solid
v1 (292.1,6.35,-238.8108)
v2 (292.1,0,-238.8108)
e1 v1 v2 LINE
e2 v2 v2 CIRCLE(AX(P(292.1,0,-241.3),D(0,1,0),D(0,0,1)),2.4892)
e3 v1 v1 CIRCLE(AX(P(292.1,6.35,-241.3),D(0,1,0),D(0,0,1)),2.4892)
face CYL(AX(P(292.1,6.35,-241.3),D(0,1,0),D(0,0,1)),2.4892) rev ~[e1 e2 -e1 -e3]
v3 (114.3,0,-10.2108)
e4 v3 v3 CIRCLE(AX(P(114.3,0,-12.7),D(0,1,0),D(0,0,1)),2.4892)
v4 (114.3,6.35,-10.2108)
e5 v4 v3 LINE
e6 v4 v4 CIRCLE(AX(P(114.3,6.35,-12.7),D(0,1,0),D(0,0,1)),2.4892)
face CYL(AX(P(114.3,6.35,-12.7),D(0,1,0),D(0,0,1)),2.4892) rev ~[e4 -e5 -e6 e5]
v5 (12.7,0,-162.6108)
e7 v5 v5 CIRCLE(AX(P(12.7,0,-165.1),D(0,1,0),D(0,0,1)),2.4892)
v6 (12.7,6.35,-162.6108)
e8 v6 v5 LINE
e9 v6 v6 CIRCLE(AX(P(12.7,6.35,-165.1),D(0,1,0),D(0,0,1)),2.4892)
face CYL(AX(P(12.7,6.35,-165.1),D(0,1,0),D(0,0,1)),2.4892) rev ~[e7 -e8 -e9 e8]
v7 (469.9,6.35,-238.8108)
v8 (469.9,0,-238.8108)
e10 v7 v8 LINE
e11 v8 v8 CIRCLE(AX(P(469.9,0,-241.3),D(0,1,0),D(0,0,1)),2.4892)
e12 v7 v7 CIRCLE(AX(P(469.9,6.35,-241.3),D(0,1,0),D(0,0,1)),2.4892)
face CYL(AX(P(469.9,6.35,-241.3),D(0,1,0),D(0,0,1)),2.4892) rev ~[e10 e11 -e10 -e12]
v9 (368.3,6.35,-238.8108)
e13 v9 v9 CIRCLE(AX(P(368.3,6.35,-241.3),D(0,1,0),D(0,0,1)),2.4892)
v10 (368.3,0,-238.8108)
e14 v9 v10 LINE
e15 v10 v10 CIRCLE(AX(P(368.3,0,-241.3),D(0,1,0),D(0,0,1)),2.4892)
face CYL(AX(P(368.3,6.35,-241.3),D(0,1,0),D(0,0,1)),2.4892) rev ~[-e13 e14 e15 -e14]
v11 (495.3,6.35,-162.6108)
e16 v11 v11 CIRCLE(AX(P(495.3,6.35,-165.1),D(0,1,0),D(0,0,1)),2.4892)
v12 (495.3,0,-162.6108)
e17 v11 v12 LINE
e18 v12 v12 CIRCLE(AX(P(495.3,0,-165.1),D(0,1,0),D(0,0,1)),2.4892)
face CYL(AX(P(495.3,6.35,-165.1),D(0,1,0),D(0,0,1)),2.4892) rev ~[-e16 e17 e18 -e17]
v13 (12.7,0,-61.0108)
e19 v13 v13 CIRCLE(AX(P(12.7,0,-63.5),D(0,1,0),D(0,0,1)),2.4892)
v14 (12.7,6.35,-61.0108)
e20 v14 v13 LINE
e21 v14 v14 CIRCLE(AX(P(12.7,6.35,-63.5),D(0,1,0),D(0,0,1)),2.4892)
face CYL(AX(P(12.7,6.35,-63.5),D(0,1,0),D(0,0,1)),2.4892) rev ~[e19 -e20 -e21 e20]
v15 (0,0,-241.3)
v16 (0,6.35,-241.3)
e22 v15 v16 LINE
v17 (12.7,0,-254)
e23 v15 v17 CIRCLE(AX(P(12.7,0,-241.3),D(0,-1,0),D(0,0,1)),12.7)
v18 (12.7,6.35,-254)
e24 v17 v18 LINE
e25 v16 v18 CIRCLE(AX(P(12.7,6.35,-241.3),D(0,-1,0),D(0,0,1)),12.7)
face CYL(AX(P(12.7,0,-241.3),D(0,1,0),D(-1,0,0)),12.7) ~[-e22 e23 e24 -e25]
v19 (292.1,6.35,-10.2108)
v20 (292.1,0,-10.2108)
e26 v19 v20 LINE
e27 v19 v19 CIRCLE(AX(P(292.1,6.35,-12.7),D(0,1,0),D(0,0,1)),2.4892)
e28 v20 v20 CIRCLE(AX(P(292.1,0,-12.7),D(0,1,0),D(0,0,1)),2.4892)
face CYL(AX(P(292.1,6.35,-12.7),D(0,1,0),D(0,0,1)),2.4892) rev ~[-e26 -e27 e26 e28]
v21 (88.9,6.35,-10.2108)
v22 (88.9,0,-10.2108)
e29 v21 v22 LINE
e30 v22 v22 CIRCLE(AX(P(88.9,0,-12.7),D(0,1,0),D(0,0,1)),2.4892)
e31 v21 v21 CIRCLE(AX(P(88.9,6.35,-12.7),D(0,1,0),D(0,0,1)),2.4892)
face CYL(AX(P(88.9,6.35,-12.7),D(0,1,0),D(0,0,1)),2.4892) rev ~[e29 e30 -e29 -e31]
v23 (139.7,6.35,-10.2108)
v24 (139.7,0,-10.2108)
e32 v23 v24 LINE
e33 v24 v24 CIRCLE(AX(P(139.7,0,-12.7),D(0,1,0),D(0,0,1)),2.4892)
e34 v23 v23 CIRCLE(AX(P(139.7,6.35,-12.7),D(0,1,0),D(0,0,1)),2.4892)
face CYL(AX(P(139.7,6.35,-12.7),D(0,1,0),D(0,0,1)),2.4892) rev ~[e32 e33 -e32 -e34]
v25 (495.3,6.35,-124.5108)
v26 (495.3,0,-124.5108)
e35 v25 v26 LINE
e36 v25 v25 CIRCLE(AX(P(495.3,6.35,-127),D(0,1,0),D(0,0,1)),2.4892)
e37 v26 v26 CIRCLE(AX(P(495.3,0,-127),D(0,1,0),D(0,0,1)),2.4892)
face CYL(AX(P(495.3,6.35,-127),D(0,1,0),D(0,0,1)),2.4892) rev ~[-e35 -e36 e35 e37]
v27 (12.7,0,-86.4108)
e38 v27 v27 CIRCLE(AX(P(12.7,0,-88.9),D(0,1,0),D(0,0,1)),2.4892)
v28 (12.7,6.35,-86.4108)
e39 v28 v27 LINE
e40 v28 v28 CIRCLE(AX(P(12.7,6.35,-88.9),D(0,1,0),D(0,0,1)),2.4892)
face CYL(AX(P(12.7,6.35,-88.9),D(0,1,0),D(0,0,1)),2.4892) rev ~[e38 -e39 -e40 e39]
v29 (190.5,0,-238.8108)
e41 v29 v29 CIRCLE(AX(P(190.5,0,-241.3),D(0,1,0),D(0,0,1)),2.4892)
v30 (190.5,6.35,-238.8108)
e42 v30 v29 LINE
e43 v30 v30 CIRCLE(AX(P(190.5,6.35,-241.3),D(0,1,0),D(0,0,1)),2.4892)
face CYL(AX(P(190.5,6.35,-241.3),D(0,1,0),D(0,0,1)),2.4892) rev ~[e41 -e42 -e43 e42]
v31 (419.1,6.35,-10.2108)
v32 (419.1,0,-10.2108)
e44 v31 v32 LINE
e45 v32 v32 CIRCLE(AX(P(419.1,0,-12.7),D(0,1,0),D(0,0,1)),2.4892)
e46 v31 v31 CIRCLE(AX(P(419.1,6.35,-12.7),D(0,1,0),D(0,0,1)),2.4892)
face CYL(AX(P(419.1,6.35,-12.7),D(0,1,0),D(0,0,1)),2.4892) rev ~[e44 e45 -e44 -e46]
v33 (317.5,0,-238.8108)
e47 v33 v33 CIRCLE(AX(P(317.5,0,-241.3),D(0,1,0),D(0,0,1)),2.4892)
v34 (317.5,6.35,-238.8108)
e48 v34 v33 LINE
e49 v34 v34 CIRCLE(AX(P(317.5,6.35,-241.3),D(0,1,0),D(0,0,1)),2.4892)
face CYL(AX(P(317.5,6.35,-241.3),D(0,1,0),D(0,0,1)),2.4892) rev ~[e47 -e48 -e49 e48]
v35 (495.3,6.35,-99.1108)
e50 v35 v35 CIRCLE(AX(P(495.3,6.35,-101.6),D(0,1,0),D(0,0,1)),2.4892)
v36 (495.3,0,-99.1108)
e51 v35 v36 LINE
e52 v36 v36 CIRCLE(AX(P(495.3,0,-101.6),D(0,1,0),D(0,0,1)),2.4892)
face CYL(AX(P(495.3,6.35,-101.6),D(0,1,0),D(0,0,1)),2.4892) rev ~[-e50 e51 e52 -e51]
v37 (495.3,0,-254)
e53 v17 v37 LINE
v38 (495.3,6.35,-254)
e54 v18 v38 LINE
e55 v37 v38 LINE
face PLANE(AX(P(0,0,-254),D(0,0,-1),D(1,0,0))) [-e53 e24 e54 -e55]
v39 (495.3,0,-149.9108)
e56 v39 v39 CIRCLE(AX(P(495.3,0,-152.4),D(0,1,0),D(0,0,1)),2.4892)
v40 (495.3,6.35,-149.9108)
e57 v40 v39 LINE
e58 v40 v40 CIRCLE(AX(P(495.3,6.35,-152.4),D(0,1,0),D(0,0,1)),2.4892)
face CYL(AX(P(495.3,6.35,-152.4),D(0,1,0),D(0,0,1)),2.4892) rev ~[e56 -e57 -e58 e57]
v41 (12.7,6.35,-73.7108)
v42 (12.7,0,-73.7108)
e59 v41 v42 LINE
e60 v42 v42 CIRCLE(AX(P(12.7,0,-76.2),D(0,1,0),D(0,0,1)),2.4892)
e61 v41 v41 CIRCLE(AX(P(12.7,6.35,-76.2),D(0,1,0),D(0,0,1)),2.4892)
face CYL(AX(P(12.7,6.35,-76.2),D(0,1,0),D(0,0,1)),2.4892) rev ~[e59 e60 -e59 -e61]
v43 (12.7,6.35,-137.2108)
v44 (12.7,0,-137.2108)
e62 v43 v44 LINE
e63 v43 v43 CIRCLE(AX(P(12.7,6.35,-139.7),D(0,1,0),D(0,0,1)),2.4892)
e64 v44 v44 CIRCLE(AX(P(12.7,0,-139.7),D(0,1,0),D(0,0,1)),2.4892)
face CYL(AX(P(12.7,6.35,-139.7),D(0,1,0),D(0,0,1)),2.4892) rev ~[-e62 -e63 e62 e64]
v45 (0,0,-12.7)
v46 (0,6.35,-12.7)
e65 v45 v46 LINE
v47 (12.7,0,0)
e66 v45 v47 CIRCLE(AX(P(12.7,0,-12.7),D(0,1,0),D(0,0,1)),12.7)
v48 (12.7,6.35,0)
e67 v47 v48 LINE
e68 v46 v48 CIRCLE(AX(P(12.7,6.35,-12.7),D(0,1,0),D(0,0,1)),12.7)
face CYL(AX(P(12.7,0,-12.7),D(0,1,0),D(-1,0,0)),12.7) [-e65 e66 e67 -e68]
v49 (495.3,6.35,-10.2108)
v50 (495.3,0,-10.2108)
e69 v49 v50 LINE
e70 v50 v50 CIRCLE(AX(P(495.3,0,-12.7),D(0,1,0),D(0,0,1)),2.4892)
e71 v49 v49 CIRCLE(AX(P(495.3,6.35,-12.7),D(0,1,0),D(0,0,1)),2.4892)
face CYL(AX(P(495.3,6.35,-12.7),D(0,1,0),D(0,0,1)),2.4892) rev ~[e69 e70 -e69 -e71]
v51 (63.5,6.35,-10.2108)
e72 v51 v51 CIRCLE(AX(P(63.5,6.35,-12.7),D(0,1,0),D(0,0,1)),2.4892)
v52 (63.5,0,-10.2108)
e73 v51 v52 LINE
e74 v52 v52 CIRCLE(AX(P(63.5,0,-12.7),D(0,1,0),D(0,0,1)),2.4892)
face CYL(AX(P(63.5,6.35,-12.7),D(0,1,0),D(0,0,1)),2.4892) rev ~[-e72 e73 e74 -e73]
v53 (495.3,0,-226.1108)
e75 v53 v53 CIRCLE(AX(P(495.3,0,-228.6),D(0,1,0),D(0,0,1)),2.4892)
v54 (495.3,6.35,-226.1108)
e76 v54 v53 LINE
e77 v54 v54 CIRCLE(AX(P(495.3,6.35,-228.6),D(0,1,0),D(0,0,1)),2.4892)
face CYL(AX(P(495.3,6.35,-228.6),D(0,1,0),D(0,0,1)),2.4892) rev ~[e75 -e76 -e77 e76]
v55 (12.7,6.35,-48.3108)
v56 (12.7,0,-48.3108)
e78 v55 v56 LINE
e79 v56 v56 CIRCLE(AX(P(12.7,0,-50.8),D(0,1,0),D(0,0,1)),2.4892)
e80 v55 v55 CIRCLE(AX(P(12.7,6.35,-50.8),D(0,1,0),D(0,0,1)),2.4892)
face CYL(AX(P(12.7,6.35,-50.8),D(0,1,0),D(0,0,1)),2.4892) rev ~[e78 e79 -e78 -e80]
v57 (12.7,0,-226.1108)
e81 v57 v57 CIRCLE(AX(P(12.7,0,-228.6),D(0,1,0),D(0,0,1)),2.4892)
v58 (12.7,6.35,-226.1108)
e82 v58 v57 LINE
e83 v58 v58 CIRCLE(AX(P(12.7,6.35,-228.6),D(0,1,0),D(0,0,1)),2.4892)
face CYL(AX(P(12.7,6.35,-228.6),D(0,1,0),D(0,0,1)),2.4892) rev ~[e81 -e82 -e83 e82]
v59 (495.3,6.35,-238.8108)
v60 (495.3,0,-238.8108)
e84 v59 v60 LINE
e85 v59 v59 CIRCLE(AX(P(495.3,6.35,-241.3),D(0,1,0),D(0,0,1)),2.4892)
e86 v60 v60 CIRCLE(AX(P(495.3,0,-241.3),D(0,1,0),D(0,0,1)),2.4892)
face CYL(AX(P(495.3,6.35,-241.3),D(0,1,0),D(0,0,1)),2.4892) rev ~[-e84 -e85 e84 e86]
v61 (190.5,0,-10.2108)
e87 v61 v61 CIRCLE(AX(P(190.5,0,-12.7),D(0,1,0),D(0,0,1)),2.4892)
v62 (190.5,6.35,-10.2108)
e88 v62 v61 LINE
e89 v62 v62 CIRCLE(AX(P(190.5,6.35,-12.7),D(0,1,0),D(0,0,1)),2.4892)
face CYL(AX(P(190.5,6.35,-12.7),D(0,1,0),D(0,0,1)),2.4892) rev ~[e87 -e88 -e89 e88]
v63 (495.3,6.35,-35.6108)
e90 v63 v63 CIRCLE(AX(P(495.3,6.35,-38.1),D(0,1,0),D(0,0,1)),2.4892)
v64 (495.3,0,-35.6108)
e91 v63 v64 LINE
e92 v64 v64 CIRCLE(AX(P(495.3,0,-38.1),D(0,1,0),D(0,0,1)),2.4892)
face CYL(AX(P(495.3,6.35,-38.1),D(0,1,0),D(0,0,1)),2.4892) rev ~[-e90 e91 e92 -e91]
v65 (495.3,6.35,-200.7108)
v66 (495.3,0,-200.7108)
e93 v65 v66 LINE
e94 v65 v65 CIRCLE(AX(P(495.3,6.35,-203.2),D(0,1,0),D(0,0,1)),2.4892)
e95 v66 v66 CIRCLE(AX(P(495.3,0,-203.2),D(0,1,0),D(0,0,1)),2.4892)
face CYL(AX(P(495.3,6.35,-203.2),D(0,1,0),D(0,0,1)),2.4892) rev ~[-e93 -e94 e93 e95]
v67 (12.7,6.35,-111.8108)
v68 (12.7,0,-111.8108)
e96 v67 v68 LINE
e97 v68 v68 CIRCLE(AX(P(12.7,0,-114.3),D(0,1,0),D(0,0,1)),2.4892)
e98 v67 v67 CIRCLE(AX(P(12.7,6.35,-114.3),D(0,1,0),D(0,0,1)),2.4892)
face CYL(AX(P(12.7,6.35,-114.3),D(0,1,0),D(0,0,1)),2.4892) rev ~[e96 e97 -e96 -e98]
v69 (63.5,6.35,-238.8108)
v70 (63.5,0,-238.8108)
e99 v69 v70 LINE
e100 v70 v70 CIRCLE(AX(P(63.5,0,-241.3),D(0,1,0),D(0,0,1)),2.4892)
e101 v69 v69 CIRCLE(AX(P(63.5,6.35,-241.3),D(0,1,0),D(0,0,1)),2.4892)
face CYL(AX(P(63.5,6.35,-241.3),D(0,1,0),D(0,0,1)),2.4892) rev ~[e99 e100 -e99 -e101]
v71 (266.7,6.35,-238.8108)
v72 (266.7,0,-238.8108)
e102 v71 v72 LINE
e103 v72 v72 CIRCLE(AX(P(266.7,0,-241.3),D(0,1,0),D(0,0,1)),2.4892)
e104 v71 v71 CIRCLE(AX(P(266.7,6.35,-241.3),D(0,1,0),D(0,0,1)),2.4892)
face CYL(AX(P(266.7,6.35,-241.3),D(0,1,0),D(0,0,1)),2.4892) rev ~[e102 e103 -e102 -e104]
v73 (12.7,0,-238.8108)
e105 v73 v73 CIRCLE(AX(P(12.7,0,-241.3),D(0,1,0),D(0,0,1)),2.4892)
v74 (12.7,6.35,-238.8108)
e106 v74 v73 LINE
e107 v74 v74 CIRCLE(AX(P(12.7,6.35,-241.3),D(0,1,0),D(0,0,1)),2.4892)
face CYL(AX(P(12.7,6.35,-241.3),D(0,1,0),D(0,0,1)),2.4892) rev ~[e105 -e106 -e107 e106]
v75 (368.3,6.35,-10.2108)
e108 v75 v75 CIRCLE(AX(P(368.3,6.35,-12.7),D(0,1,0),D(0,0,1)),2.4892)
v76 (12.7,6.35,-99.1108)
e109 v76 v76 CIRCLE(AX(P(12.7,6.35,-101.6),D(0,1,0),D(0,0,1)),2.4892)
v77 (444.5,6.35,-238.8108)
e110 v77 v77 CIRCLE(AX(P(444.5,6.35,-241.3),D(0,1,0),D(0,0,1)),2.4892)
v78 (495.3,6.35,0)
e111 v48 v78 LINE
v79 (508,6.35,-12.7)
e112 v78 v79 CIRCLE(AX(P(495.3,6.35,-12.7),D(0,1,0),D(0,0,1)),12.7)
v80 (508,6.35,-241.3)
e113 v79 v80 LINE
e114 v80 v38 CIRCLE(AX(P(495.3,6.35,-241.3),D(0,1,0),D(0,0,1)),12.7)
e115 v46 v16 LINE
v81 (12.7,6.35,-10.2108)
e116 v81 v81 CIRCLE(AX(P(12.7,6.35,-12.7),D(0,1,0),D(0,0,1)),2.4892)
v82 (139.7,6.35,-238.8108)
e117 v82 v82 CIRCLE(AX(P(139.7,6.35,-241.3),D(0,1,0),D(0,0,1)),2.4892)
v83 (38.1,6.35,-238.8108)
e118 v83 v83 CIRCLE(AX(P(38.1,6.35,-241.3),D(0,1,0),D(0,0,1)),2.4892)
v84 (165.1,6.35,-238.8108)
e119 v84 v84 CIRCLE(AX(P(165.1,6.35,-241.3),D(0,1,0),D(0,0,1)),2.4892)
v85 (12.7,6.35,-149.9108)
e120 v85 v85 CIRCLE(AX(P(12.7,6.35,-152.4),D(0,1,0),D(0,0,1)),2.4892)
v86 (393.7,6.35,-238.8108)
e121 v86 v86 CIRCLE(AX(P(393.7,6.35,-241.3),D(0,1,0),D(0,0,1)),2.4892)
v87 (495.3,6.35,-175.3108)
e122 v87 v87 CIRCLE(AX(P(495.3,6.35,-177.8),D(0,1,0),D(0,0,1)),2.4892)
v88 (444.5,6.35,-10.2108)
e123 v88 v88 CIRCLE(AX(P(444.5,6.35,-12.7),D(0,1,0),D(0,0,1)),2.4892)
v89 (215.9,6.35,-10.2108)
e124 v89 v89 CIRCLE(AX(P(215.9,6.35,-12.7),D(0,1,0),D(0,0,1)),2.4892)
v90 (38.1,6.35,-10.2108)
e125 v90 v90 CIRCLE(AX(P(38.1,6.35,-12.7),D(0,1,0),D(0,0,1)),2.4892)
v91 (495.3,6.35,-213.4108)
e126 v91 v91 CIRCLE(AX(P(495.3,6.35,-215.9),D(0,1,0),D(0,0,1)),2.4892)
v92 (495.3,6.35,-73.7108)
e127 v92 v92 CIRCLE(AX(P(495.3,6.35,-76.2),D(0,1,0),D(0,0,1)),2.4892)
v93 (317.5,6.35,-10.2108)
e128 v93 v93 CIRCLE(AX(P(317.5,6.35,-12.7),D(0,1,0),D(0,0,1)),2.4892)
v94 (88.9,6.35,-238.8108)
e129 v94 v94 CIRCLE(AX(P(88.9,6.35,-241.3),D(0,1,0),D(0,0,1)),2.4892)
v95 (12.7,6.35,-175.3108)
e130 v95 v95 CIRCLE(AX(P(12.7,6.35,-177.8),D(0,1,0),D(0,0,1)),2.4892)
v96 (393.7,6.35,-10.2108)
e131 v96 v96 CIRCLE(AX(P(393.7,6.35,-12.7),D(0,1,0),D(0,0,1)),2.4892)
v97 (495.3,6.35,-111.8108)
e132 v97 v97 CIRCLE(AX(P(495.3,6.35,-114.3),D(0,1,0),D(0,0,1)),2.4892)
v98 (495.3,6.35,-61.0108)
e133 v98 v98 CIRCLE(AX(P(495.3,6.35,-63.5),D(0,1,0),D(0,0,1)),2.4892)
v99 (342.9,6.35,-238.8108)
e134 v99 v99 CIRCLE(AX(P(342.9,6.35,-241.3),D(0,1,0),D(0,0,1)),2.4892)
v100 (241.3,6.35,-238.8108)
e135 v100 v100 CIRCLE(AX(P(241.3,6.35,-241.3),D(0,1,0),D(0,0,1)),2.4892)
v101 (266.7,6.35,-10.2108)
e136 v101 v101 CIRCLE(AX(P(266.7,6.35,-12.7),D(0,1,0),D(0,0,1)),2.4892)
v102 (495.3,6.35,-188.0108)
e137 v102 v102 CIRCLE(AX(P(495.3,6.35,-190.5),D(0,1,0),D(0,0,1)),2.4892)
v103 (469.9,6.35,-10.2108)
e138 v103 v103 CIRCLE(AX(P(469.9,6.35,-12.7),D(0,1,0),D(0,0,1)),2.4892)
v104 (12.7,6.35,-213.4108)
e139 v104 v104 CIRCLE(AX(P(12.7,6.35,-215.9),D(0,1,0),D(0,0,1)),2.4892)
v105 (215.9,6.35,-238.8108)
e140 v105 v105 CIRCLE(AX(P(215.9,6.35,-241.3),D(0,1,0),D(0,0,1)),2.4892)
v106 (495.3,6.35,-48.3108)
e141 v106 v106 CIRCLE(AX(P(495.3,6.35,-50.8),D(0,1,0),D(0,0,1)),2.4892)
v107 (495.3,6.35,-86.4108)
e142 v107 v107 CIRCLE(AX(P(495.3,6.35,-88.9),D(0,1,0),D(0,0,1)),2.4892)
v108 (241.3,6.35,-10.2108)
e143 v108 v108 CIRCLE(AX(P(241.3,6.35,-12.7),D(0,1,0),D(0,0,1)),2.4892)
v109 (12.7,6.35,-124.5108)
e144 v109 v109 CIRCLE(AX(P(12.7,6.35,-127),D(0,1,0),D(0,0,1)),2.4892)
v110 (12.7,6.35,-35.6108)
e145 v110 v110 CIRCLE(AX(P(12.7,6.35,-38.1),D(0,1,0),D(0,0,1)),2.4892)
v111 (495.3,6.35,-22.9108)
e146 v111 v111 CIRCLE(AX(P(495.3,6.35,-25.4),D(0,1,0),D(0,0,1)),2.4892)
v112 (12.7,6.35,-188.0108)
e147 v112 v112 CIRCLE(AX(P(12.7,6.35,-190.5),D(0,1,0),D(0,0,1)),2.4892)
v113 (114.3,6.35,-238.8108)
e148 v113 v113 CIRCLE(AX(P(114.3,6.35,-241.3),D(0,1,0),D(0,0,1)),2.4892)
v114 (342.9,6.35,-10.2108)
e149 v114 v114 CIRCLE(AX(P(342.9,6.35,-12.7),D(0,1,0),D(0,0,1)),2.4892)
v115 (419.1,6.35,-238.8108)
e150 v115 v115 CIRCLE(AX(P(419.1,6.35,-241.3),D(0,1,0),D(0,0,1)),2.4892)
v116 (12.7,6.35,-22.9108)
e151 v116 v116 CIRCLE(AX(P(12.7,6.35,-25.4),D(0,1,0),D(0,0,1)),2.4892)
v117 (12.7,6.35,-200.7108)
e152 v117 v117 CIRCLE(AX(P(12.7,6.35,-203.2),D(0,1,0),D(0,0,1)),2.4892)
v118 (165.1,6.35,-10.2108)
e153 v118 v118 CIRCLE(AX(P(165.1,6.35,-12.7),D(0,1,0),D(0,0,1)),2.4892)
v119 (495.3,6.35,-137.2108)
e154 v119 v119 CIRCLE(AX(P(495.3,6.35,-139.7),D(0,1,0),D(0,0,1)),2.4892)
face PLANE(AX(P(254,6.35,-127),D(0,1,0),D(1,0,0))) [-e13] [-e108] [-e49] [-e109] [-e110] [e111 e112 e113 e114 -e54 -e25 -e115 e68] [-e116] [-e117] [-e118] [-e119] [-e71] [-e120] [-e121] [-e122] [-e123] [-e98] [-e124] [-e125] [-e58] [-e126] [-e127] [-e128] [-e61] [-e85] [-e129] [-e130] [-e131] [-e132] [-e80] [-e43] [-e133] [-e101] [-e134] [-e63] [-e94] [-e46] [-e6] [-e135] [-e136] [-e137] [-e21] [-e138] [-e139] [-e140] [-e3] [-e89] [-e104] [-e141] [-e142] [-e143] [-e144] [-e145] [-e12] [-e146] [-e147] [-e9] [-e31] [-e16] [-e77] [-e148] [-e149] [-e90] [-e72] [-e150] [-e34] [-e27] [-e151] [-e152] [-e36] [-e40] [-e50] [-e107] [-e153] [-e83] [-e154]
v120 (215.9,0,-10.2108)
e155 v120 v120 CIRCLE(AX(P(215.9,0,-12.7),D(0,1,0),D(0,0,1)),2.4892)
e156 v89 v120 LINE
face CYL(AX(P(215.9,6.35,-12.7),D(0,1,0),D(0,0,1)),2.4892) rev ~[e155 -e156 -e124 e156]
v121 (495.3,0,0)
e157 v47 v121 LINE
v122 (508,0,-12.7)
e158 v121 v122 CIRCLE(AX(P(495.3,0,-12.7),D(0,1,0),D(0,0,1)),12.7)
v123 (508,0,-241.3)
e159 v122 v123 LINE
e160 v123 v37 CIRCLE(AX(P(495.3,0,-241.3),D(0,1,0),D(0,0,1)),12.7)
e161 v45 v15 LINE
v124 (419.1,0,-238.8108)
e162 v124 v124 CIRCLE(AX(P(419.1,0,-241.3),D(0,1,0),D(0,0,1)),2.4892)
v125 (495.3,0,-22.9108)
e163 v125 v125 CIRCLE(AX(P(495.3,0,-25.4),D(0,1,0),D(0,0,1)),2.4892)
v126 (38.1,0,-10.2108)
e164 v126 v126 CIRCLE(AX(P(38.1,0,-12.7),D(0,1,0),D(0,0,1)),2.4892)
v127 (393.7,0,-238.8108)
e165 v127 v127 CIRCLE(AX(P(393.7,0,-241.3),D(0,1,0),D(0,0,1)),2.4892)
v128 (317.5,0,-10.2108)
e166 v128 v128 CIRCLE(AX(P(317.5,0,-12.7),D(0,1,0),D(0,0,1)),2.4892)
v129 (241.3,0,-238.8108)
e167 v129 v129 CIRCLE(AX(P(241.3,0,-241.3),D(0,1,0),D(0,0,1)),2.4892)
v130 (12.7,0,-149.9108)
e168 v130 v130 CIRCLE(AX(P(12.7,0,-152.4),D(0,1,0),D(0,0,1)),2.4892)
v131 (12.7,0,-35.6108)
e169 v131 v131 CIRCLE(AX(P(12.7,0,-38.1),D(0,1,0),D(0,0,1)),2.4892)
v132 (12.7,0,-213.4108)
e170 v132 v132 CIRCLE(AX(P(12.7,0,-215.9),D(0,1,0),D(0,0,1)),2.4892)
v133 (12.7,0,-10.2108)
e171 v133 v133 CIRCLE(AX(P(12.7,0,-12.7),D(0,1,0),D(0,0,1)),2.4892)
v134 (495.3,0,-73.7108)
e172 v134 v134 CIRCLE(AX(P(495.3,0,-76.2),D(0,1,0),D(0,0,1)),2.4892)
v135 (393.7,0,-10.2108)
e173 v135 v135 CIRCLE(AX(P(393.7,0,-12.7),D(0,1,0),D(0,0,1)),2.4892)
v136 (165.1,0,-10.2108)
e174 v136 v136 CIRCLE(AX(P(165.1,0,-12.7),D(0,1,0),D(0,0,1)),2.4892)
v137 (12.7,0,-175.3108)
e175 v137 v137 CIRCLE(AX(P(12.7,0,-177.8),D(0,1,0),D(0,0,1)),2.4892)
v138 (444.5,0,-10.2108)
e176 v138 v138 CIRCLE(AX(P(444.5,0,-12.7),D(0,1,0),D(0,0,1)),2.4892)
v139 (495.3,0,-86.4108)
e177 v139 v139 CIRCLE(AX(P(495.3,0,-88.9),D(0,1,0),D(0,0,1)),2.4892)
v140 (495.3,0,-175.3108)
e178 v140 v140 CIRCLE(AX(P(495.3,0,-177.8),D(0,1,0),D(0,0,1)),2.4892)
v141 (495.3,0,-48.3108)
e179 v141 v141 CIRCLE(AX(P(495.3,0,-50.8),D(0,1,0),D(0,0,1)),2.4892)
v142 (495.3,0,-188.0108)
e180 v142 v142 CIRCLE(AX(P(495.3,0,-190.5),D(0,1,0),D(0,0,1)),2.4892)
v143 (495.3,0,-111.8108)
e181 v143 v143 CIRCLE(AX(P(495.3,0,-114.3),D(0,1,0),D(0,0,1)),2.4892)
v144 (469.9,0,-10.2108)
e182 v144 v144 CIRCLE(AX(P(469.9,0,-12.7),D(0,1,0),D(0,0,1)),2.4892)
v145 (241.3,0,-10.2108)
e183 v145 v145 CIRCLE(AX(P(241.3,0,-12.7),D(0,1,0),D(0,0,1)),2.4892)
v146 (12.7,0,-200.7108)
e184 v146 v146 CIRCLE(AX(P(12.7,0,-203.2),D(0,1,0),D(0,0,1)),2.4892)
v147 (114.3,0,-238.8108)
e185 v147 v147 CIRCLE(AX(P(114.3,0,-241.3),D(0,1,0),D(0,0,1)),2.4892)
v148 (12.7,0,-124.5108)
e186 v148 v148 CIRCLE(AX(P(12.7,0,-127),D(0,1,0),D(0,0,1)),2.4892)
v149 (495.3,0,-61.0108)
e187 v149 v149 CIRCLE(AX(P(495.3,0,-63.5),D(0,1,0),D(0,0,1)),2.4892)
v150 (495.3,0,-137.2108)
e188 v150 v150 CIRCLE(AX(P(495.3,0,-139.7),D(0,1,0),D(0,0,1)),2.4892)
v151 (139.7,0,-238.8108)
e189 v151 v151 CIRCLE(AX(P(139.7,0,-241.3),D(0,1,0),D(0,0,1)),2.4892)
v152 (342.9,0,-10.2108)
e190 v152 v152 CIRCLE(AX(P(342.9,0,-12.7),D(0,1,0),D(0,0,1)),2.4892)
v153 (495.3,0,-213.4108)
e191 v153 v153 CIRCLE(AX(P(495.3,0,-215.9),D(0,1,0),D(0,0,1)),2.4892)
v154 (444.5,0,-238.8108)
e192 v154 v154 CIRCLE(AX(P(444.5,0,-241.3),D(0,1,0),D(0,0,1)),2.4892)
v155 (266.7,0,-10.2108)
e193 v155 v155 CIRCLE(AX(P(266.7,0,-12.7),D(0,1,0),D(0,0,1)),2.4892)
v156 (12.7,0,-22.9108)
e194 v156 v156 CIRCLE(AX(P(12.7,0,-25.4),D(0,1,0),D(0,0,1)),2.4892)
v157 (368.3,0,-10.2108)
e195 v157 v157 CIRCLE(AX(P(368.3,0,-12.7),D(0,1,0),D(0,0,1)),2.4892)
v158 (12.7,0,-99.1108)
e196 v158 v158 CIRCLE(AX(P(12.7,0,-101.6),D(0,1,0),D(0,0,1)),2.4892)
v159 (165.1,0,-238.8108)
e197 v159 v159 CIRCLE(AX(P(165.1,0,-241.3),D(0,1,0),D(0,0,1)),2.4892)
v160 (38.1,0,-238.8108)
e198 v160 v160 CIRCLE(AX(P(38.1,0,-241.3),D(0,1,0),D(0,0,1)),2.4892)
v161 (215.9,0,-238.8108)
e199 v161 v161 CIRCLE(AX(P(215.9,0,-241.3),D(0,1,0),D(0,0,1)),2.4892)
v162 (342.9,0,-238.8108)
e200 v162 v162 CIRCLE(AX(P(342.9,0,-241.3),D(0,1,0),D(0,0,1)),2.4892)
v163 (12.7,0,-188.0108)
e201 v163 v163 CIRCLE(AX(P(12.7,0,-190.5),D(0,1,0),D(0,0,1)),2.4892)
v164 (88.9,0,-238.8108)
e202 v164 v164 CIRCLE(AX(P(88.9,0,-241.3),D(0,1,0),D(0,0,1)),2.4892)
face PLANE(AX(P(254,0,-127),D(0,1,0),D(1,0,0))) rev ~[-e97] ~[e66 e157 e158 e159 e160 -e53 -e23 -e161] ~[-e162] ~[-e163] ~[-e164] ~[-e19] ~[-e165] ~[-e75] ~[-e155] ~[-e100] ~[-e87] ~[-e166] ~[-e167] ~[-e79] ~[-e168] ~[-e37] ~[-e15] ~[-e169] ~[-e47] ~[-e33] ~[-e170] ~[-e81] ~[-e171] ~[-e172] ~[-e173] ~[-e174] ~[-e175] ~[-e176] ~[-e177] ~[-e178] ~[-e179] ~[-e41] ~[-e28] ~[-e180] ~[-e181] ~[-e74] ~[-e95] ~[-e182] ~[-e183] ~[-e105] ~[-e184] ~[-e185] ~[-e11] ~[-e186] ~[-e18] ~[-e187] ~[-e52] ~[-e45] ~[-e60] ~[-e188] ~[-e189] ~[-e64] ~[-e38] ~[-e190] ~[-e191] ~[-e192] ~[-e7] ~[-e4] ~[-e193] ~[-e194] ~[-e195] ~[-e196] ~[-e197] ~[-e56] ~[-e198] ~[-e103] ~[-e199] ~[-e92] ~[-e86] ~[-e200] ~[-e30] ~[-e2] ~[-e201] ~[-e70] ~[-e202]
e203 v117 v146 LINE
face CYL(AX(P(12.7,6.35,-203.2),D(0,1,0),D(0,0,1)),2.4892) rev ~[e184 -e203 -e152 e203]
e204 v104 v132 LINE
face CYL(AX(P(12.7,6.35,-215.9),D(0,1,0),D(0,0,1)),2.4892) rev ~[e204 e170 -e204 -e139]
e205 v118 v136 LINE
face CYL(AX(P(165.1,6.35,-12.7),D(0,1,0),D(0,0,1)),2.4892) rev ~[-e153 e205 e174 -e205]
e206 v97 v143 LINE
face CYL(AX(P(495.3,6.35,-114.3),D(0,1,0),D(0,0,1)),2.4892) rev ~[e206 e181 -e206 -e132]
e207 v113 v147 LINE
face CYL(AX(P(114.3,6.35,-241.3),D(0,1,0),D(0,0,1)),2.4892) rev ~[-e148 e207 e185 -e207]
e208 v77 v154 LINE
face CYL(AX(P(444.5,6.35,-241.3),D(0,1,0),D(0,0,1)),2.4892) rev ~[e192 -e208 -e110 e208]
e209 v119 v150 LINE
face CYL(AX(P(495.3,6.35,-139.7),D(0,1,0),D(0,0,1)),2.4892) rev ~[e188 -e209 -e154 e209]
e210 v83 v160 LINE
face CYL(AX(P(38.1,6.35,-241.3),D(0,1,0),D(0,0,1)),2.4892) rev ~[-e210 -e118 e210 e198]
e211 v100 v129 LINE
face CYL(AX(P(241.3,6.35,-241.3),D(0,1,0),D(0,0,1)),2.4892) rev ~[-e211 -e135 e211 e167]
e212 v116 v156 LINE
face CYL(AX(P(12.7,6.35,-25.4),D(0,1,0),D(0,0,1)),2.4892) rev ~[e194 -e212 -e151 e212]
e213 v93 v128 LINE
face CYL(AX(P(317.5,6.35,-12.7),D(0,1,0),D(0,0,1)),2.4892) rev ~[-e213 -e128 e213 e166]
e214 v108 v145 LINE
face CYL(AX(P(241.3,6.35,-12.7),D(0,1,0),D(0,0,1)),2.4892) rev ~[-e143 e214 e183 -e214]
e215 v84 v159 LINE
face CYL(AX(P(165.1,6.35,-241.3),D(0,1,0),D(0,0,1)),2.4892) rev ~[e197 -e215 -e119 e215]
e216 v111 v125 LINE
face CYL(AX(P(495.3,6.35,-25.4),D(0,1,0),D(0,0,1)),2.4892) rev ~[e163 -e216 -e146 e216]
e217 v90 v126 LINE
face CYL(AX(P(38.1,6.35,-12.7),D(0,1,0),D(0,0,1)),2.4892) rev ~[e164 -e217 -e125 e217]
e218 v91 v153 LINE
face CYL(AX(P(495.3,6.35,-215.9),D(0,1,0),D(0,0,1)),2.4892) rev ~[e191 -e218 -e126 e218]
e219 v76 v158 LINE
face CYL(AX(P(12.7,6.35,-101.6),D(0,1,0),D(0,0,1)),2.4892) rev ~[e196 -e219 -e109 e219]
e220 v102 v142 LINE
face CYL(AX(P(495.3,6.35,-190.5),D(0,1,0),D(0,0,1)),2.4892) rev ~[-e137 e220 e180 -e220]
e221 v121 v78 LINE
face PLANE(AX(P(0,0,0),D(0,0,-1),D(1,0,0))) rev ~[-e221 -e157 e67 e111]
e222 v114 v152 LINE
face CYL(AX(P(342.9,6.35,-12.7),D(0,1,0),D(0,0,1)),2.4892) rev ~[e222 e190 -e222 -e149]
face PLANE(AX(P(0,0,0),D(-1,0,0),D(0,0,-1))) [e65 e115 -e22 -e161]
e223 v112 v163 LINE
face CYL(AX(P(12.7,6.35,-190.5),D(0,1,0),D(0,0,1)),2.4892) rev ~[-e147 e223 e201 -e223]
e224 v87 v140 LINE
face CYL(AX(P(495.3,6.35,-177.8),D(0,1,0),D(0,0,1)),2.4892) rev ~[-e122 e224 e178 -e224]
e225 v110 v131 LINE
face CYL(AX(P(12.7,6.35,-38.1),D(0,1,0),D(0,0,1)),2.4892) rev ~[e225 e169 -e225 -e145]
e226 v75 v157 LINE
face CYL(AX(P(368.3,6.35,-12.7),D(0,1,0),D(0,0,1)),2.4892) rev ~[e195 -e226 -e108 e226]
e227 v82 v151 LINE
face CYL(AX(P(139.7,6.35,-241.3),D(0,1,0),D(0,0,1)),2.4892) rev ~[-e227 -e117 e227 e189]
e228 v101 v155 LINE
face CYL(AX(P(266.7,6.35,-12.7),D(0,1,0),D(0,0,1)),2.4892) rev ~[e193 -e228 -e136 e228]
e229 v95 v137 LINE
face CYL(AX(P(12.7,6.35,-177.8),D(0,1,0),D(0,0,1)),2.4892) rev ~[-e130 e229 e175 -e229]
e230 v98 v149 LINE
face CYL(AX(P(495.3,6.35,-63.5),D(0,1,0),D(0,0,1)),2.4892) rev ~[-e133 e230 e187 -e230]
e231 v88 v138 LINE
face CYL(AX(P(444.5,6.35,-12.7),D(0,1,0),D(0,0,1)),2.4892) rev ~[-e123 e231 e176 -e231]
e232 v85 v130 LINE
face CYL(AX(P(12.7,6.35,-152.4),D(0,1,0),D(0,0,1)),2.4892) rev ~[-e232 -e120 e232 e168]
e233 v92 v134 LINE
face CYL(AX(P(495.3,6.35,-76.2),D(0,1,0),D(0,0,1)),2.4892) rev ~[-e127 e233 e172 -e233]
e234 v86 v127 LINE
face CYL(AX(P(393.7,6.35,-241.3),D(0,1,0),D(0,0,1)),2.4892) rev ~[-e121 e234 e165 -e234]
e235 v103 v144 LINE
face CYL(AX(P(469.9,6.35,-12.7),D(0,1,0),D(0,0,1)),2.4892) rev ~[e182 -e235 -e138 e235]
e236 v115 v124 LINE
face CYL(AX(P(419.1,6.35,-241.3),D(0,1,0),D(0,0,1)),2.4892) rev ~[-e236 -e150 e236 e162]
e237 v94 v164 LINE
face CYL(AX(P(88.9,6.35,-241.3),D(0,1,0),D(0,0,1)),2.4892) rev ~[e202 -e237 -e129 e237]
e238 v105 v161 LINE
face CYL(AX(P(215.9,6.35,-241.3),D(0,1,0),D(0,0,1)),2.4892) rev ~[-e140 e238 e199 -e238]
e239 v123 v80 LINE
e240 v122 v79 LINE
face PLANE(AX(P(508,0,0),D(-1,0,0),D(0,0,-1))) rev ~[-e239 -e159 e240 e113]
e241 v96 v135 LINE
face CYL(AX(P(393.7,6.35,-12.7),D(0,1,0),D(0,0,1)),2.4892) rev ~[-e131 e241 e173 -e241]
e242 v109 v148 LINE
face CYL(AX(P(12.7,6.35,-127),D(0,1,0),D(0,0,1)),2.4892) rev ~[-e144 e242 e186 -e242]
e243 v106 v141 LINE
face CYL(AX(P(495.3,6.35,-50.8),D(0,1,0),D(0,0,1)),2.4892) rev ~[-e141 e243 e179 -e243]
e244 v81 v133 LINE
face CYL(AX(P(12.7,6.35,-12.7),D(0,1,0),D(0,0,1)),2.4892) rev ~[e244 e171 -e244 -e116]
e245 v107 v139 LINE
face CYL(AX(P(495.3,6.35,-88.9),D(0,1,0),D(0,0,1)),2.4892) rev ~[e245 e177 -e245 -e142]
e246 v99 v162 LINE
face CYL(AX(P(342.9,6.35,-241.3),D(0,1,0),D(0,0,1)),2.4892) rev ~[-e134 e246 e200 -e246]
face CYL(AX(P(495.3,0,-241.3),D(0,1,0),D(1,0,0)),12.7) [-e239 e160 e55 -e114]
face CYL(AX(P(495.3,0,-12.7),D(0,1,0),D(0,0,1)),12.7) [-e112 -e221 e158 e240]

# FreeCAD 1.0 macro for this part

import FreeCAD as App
import Part
import Sketcher
from FreeCAD import Vector
Q = App.Units.Quantity


def edges_at(feature, points):
    """Names of the edges that pass closest to the given points."""
    edges = feature.Shape.Edges
    near = lambda p: min(range(len(edges)), key=lambda i: edges[i].distToShape(Part.Vertex(*p))[0])
    return sorted({f"Edge{near(p) + 1}" for p in points})

doc = App.newDocument("Part")
params = doc.addObject("Spreadsheet::Sheet", "Params")
for row, (alias, value) in enumerate([
    ("sketch1_width", "20 in"),
    ("sketch1_height", "10 in"),
    ("pad1_length", "0.25 in"),
    ("fillet_radius", "0.5 in"),
    ("sketch2_diameter", "0.196 in"),
], start=1):
    params.set(f"A{row}", alias)
    params.set(f"B{row}", "=" + value)
    params.setAlias(f"B{row}", alias)

body = doc.addObject("PartDesign::Body", "Body")

# Sketch on XZ plane
sketch1 = body.newObject("Sketcher::SketchObject", "Sketch")
sketch1.AttachmentSupport = (doc.getObject("XZ_Plane"), [""])
sketch1.MapMode = "FlatFace"
sketch1.addGeometry([
    Part.LineSegment(Vector(0, -254, 0), Vector(0, 0, 0)),
    Part.LineSegment(Vector(0, 0, 0), Vector(508, 0, 0)),
    Part.LineSegment(Vector(508, 0, 0), Vector(508, -254, 0)),
    Part.LineSegment(Vector(508, -254, 0), Vector(0, -254, 0)),
], False)
sketch1.addConstraint([
    Sketcher.Constraint("Coincident", 0, 2, 1, 1),
    Sketcher.Constraint("Coincident", 1, 2, 2, 1),
    Sketcher.Constraint("Coincident", 2, 2, 3, 1),
    Sketcher.Constraint("Coincident", 3, 2, 0, 1),
    Sketcher.Constraint("Vertical", 0),
    Sketcher.Constraint("Horizontal", 1),
    Sketcher.Constraint("Vertical", 2),
    Sketcher.Constraint("Horizontal", 3),
    Sketcher.Constraint("Coincident", 0, 2, -1, 1),
    Sketcher.Constraint("DistanceX", 1, 1, 1, 2, Q("20 in")),
    Sketcher.Constraint("DistanceY", 0, 1, 0, 2, Q("10 in")),
])
sketch1.setExpression("Constraints[9]", "Params.sketch1_width")
sketch1.setExpression("Constraints[10]", "Params.sketch1_height")
pad1 = body.newObject("PartDesign::Pad", "Pad")
pad1.Profile = sketch1
pad1.setExpression("Length", "Params.pad1_length")
pad1.Reversed = True
doc.recompute()

fillet = body.newObject("PartDesign::Fillet", "Fillet")
fillet.Base = (pad1, edges_at(pad1, [
    (0, 3.175, -254),
    (508, 3.175, -254),
    (508, 3.175, 0),
    (0, 3.175, 0),
]))
fillet.setExpression("Radius", "Params.fillet_radius")

# Sketch on XZ plane
sketch2 = body.newObject("Sketcher::SketchObject", "Sketch001")
sketch2.AttachmentSupport = (doc.getObject("XZ_Plane"), [""])
sketch2.MapMode = "FlatFace"
sketch2.AttachmentOffset = App.Placement(Vector(0, 0, -0.25 * 25.4), App.Rotation())
sketch2.addGeometry([
    Part.Circle(Vector(12.7, -203.2, 0), Vector(0, 0, 1), 2.5),  # 0
    Part.Circle(Vector(12.7, -215.9, 0), Vector(0, 0, 1), 2.5),  # 1
    Part.Circle(Vector(12.7, -228.6, 0), Vector(0, 0, 1), 2.5),  # 2
    Part.Circle(Vector(12.7, -241.3, 0), Vector(0, 0, 1), 2.5),  # 3
    Part.Circle(Vector(38.1, -241.3, 0), Vector(0, 0, 1), 2.5),  # 4
    Part.Circle(Vector(63.5, -241.3, 0), Vector(0, 0, 1), 2.5),  # 5
    Part.Circle(Vector(88.9, -241.3, 0), Vector(0, 0, 1), 2.5),  # 6
    Part.Circle(Vector(114.3, -241.3, 0), Vector(0, 0, 1), 2.5),  # 7
    Part.Circle(Vector(12.7, -12.7, 0), Vector(0, 0, 1), 2.5),  # 8
    Part.Circle(Vector(12.7, -25.4, 0), Vector(0, 0, 1), 2.5),  # 9
    Part.Circle(Vector(12.7, -38.1, 0), Vector(0, 0, 1), 2.5),  # 10
    Part.Circle(Vector(12.7, -50.8, 0), Vector(0, 0, 1), 2.5),  # 11
    Part.Circle(Vector(12.7, -63.5, 0), Vector(0, 0, 1), 2.5),  # 12
    Part.Circle(Vector(38.1, -12.7, 0), Vector(0, 0, 1), 2.5),  # 13
    Part.Circle(Vector(63.5, -12.7, 0), Vector(0, 0, 1), 2.5),  # 14
    Part.Circle(Vector(88.9, -12.7, 0), Vector(0, 0, 1), 2.5),  # 15
    Part.Circle(Vector(12.7, -101.6, 0), Vector(0, 0, 1), 2.5),  # 16
    Part.Circle(Vector(12.7, -114.3, 0), Vector(0, 0, 1), 2.5),  # 17
    Part.Circle(Vector(12.7, -127, 0), Vector(0, 0, 1), 2.5),  # 18
    Part.Circle(Vector(12.7, -139.7, 0), Vector(0, 0, 1), 2.5),  # 19
    Part.Circle(Vector(12.7, -165.1, 0), Vector(0, 0, 1), 2.5),  # 20
    Part.Circle(Vector(12.7, -152.4, 0), Vector(0, 0, 1), 2.5),  # 21
    Part.Circle(Vector(12.7, -177.8, 0), Vector(0, 0, 1), 2.5),  # 22
    Part.Circle(Vector(12.7, -190.5, 0), Vector(0, 0, 1), 2.5),  # 23
    Part.Circle(Vector(12.7, -88.9, 0), Vector(0, 0, 1), 2.5),  # 24
    Part.Circle(Vector(12.7, -76.2, 0), Vector(0, 0, 1), 2.5),  # 25
    Part.Circle(Vector(495.3, -12.7, 0), Vector(0, 0, 1), 2.5),  # 26
    Part.Circle(Vector(469.9, -12.7, 0), Vector(0, 0, 1), 2.5),  # 27
    Part.Circle(Vector(444.5, -12.7, 0), Vector(0, 0, 1), 2.5),  # 28
    Part.Circle(Vector(419.1, -12.7, 0), Vector(0, 0, 1), 2.5),  # 29
    Part.Circle(Vector(393.7, -12.7, 0), Vector(0, 0, 1), 2.5),  # 30
    Part.Circle(Vector(368.3, -12.7, 0), Vector(0, 0, 1), 2.5),  # 31
    Part.Circle(Vector(342.9, -12.7, 0), Vector(0, 0, 1), 2.5),  # 32
    Part.Circle(Vector(317.5, -12.7, 0), Vector(0, 0, 1), 2.5),  # 33
    Part.Circle(Vector(292.1, -12.7, 0), Vector(0, 0, 1), 2.5),  # 34
    Part.Circle(Vector(266.7, -12.7, 0), Vector(0, 0, 1), 2.5),  # 35
    Part.Circle(Vector(241.3, -12.7, 0), Vector(0, 0, 1), 2.5),  # 36
    Part.Circle(Vector(215.9, -12.7, 0), Vector(0, 0, 1), 2.5),  # 37
    Part.Circle(Vector(114.3, -12.7, 0), Vector(0, 0, 1), 2.5),  # 38
    Part.Circle(Vector(139.7, -12.7, 0), Vector(0, 0, 1), 2.5),  # 39
    Part.Circle(Vector(165.1, -12.7, 0), Vector(0, 0, 1), 2.5),  # 40
    Part.Circle(Vector(190.5, -12.7, 0), Vector(0, 0, 1), 2.5),  # 41
    Part.Circle(Vector(139.7, -241.3, 0), Vector(0, 0, 1), 2.5),  # 42
    Part.Circle(Vector(165.1, -241.3, 0), Vector(0, 0, 1), 2.5),  # 43
    Part.Circle(Vector(190.5, -241.3, 0), Vector(0, 0, 1), 2.5),  # 44
    Part.Circle(Vector(215.9, -241.3, 0), Vector(0, 0, 1), 2.5),  # 45
    Part.Circle(Vector(241.3, -241.3, 0), Vector(0, 0, 1), 2.5),  # 46
    Part.Circle(Vector(266.7, -241.3, 0), Vector(0, 0, 1), 2.5),  # 47
    Part.Circle(Vector(292.1, -241.3, 0), Vector(0, 0, 1), 2.5),  # 48
    Part.Circle(Vector(317.5, -241.3, 0), Vector(0, 0, 1), 2.5),  # 49
    Part.Circle(Vector(342.9, -241.3, 0), Vector(0, 0, 1), 2.5),  # 50
    Part.Circle(Vector(368.3, -241.3, 0), Vector(0, 0, 1), 2.5),  # 51
    Part.Circle(Vector(393.7, -241.3, 0), Vector(0, 0, 1), 2.5),  # 52
    Part.Circle(Vector(419.1, -241.3, 0), Vector(0, 0, 1), 2.5),  # 53
    Part.Circle(Vector(444.5, -241.3, 0), Vector(0, 0, 1), 2.5),  # 54
    Part.Circle(Vector(469.9, -241.3, 0), Vector(0, 0, 1), 2.5),  # 55
    Part.Circle(Vector(495.3, -241.3, 0), Vector(0, 0, 1), 2.5),  # 56
    Part.Circle(Vector(495.3, -25.4, 0), Vector(0, 0, 1), 2.5),  # 57
    Part.Circle(Vector(495.3, -38.1, 0), Vector(0, 0, 1), 2.5),  # 58
    Part.Circle(Vector(495.3, -50.8, 0), Vector(0, 0, 1), 2.5),  # 59
    Part.Circle(Vector(495.3, -101.6, 0), Vector(0, 0, 1), 2.5),  # 60
    Part.Circle(Vector(495.3, -88.9, 0), Vector(0, 0, 1), 2.5),  # 61
    Part.Circle(Vector(495.3, -76.2, 0), Vector(0, 0, 1), 2.5),  # 62
    Part.Circle(Vector(495.3, -63.5, 0), Vector(0, 0, 1), 2.5),  # 63
    Part.Circle(Vector(495.3, -114.3, 0), Vector(0, 0, 1), 2.5),  # 64
    Part.Circle(Vector(495.3, -127, 0), Vector(0, 0, 1), 2.5),  # 65
    Part.Circle(Vector(495.3, -139.7, 0), Vector(0, 0, 1), 2.5),  # 66
    Part.Circle(Vector(495.3, -152.4, 0), Vector(0, 0, 1), 2.5),  # 67
    Part.Circle(Vector(495.3, -165.1, 0), Vector(0, 0, 1), 2.5),  # 68
    Part.Circle(Vector(495.3, -177.8, 0), Vector(0, 0, 1), 2.5),  # 69
    Part.Circle(Vector(495.3, -190.5, 0), Vector(0, 0, 1), 2.5),  # 70
    Part.Circle(Vector(495.3, -203.2, 0), Vector(0, 0, 1), 2.5),  # 71
    Part.Circle(Vector(495.3, -228.6, 0), Vector(0, 0, 1), 2.5),  # 72
    Part.Circle(Vector(495.3, -215.9, 0), Vector(0, 0, 1), 2.5),  # 73
], False)
sketch2.addConstraint([
    Sketcher.Constraint("Equal", 0, 1),
    Sketcher.Constraint("Equal", 1, 2),
    Sketcher.Constraint("Equal", 2, 3),
    Sketcher.Constraint("Equal", 3, 4),
    Sketcher.Constraint("Equal", 4, 5),
    Sketcher.Constraint("Equal", 5, 6),
    Sketcher.Constraint("Equal", 6, 7),
    Sketcher.Constraint("Equal", 7, 8),
    Sketcher.Constraint("Equal", 8, 9),
    Sketcher.Constraint("Equal", 9, 10),
    Sketcher.Constraint("Equal", 10, 11),
    Sketcher.Constraint("Equal", 11, 12),
    Sketcher.Constraint("Equal", 12, 13),
    Sketcher.Constraint("Equal", 13, 14),
    Sketcher.Constraint("Equal", 14, 15),
    Sketcher.Constraint("Equal", 15, 16),
    Sketcher.Constraint("Equal", 16, 17),
    Sketcher.Constraint("Equal", 17, 18),
    Sketcher.Constraint("Equal", 18, 19),
    Sketcher.Constraint("Equal", 19, 20),
    Sketcher.Constraint("Equal", 20, 21),
    Sketcher.Constraint("Equal", 21, 22),
    Sketcher.Constraint("Equal", 22, 23),
    Sketcher.Constraint("Equal", 23, 24),
    Sketcher.Constraint("Equal", 24, 25),
    Sketcher.Constraint("Equal", 25, 26),
    Sketcher.Constraint("Equal", 26, 27),
    Sketcher.Constraint("Equal", 27, 28),
    Sketcher.Constraint("Equal", 28, 29),
    Sketcher.Constraint("Equal", 29, 30),
    Sketcher.Constraint("Equal", 30, 31),
    Sketcher.Constraint("Equal", 31, 32),
    Sketcher.Constraint("Equal", 32, 33),
    Sketcher.Constraint("Equal", 33, 34),
    Sketcher.Constraint("Equal", 34, 35),
    Sketcher.Constraint("Equal", 35, 36),
    Sketcher.Constraint("Equal", 36, 37),
    Sketcher.Constraint("Equal", 37, 38),
    Sketcher.Constraint("Equal", 38, 39),
    Sketcher.Constraint("Equal", 39, 40),
    Sketcher.Constraint("Equal", 40, 41),
    Sketcher.Constraint("Equal", 41, 42),
    Sketcher.Constraint("Equal", 42, 43),
    Sketcher.Constraint("Equal", 43, 44),
    Sketcher.Constraint("Equal", 44, 45),
    Sketcher.Constraint("Equal", 45, 46),
    Sketcher.Constraint("Equal", 46, 47),
    Sketcher.Constraint("Equal", 47, 48),
    Sketcher.Constraint("Equal", 48, 49),
    Sketcher.Constraint("Equal", 49, 50),
    Sketcher.Constraint("Equal", 50, 51),
    Sketcher.Constraint("Equal", 51, 52),
    Sketcher.Constraint("Equal", 52, 53),
    Sketcher.Constraint("Equal", 53, 54),
    Sketcher.Constraint("Equal", 54, 55),
    Sketcher.Constraint("Equal", 55, 56),
    Sketcher.Constraint("Equal", 56, 57),
    Sketcher.Constraint("Equal", 57, 58),
    Sketcher.Constraint("Equal", 58, 59),
    Sketcher.Constraint("Equal", 59, 60),
    Sketcher.Constraint("Equal", 60, 61),
    Sketcher.Constraint("Equal", 61, 62),
    Sketcher.Constraint("Equal", 62, 63),
    Sketcher.Constraint("Equal", 63, 64),
    Sketcher.Constraint("Equal", 64, 65),
    Sketcher.Constraint("Equal", 65, 66),
    Sketcher.Constraint("Equal", 66, 67),
    Sketcher.Constraint("Equal", 67, 68),
    Sketcher.Constraint("Equal", 68, 69),
    Sketcher.Constraint("Equal", 69, 70),
    Sketcher.Constraint("Equal", 70, 71),
    Sketcher.Constraint("Equal", 71, 72),
    Sketcher.Constraint("Equal", 72, 73),
    Sketcher.Constraint("Horizontal", 3, 3, 4, 3),
    Sketcher.Constraint("Horizontal", 4, 3, 5, 3),
    Sketcher.Constraint("Horizontal", 5, 3, 6, 3),
    Sketcher.Constraint("Horizontal", 6, 3, 7, 3),
    Sketcher.Constraint("Horizontal", 8, 3, 13, 3),
    Sketcher.Constraint("Horizontal", 13, 3, 14, 3),
    Sketcher.Constraint("Horizontal", 14, 3, 15, 3),
    Sketcher.Constraint("Horizontal", 15, 3, 26, 3),
    Sketcher.Constraint("Horizontal", 26, 3, 27, 3),
    Sketcher.Constraint("Horizontal", 27, 3, 28, 3),
    Sketcher.Constraint("Horizontal", 28, 3, 29, 3),
    Sketcher.Constraint("Horizontal", 29, 3, 30, 3),
    Sketcher.Constraint("Horizontal", 30, 3, 31, 3),
    Sketcher.Constraint("Horizontal", 31, 3, 32, 3),
    Sketcher.Constraint("Horizontal", 32, 3, 33, 3),
    Sketcher.Constraint("Horizontal", 33, 3, 34, 3),
    Sketcher.Constraint("Horizontal", 34, 3, 35, 3),
    Sketcher.Constraint("Horizontal", 35, 3, 36, 3),
    Sketcher.Constraint("Horizontal", 36, 3, 37, 3),
    Sketcher.Constraint("Horizontal", 37, 3, 38, 3),
    Sketcher.Constraint("Horizontal", 38, 3, 39, 3),
    Sketcher.Constraint("Horizontal", 39, 3, 40, 3),
    Sketcher.Constraint("Horizontal", 40, 3, 41, 3),
    Sketcher.Constraint("Horizontal", 7, 3, 42, 3),
    Sketcher.Constraint("Horizontal", 42, 3, 43, 3),
    Sketcher.Constraint("Horizontal", 43, 3, 44, 3),
    Sketcher.Constraint("Horizontal", 44, 3, 45, 3),
    Sketcher.Constraint("Horizontal", 45, 3, 46, 3),
    Sketcher.Constraint("Horizontal", 46, 3, 47, 3),
    Sketcher.Constraint("Horizontal", 47, 3, 48, 3),
    Sketcher.Constraint("Horizontal", 48, 3, 49, 3),
    Sketcher.Constraint("Horizontal", 49, 3, 50, 3),
    Sketcher.Constraint("Horizontal", 50, 3, 51, 3),
    Sketcher.Constraint("Horizontal", 51, 3, 52, 3),
    Sketcher.Constraint("Horizontal", 52, 3, 53, 3),
    Sketcher.Constraint("Horizontal", 53, 3, 54, 3),
    Sketcher.Constraint("Horizontal", 54, 3, 55, 3),
    Sketcher.Constraint("Horizontal", 55, 3, 56, 3),
    Sketcher.Constraint("Horizontal", 9, 3, 57, 3),
    Sketcher.Constraint("Horizontal", 10, 3, 58, 3),
    Sketcher.Constraint("Horizontal", 11, 3, 59, 3),
    Sketcher.Constraint("Horizontal", 16, 3, 60, 3),
    Sketcher.Constraint("Horizontal", 24, 3, 61, 3),
    Sketcher.Constraint("Horizontal", 25, 3, 62, 3),
    Sketcher.Constraint("Horizontal", 12, 3, 63, 3),
    Sketcher.Constraint("Horizontal", 17, 3, 64, 3),
    Sketcher.Constraint("Horizontal", 18, 3, 65, 3),
    Sketcher.Constraint("Horizontal", 19, 3, 66, 3),
    Sketcher.Constraint("Horizontal", 21, 3, 67, 3),
    Sketcher.Constraint("Horizontal", 20, 3, 68, 3),
    Sketcher.Constraint("Horizontal", 22, 3, 69, 3),
    Sketcher.Constraint("Horizontal", 23, 3, 70, 3),
    Sketcher.Constraint("Horizontal", 0, 3, 71, 3),
    Sketcher.Constraint("Horizontal", 2, 3, 72, 3),
    Sketcher.Constraint("Horizontal", 1, 3, 73, 3),
    Sketcher.Constraint("Vertical", 0, 3, 1, 3),
    Sketcher.Constraint("Vertical", 1, 3, 2, 3),
    Sketcher.Constraint("Vertical", 2, 3, 3, 3),
    Sketcher.Constraint("Vertical", 3, 3, 8, 3),
    Sketcher.Constraint("Vertical", 8, 3, 9, 3),
    Sketcher.Constraint("Vertical", 9, 3, 10, 3),
    Sketcher.Constraint("Vertical", 10, 3, 11, 3),
    Sketcher.Constraint("Vertical", 11, 3, 12, 3),
    Sketcher.Constraint("Vertical", 4, 3, 13, 3),
    Sketcher.Constraint("Vertical", 5, 3, 14, 3),
    Sketcher.Constraint("Vertical", 6, 3, 15, 3),
    Sketcher.Constraint("Vertical", 12, 3, 16, 3),
    Sketcher.Constraint("Vertical", 16, 3, 17, 3),
    Sketcher.Constraint("Vertical", 17, 3, 18, 3),
    Sketcher.Constraint("Vertical", 18, 3, 19, 3),
    Sketcher.Constraint("Vertical", 19, 3, 20, 3),
    Sketcher.Constraint("Vertical", 20, 3, 21, 3),
    Sketcher.Constraint("Vertical", 21, 3, 22, 3),
    Sketcher.Constraint("Vertical", 22, 3, 23, 3),
    Sketcher.Constraint("Vertical", 23, 3, 24, 3),
    Sketcher.Constraint("Vertical", 24, 3, 25, 3),
    Sketcher.Constraint("Vertical", 7, 3, 38, 3),
    Sketcher.Constraint("Vertical", 39, 3, 42, 3),
    Sketcher.Constraint("Vertical", 40, 3, 43, 3),
    Sketcher.Constraint("Vertical", 41, 3, 44, 3),
    Sketcher.Constraint("Vertical", 37, 3, 45, 3),
    Sketcher.Constraint("Vertical", 36, 3, 46, 3),
    Sketcher.Constraint("Vertical", 35, 3, 47, 3),
    Sketcher.Constraint("Vertical", 34, 3, 48, 3),
    Sketcher.Constraint("Vertical", 33, 3, 49, 3),
    Sketcher.Constraint("Vertical", 32, 3, 50, 3),
    Sketcher.Constraint("Vertical", 31, 3, 51, 3),
    Sketcher.Constraint("Vertical", 30, 3, 52, 3),
    Sketcher.Constraint("Vertical", 29, 3, 53, 3),
    Sketcher.Constraint("Vertical", 28, 3, 54, 3),
    Sketcher.Constraint("Vertical", 27, 3, 55, 3),
    Sketcher.Constraint("Vertical", 26, 3, 56, 3),
    Sketcher.Constraint("Vertical", 56, 3, 57, 3),
    Sketcher.Constraint("Vertical", 57, 3, 58, 3),
    Sketcher.Constraint("Vertical", 58, 3, 59, 3),
    Sketcher.Constraint("Vertical", 59, 3, 60, 3),
    Sketcher.Constraint("Vertical", 60, 3, 61, 3),
    Sketcher.Constraint("Vertical", 61, 3, 62, 3),
    Sketcher.Constraint("Vertical", 62, 3, 63, 3),
    Sketcher.Constraint("Vertical", 63, 3, 64, 3),
    Sketcher.Constraint("Vertical", 64, 3, 65, 3),
    Sketcher.Constraint("Vertical", 65, 3, 66, 3),
    Sketcher.Constraint("Vertical", 66, 3, 67, 3),
    Sketcher.Constraint("Vertical", 67, 3, 68, 3),
    Sketcher.Constraint("Vertical", 68, 3, 69, 3),
    Sketcher.Constraint("Vertical", 69, 3, 70, 3),
    Sketcher.Constraint("Vertical", 70, 3, 71, 3),
    Sketcher.Constraint("Vertical", 71, 3, 72, 3),
    Sketcher.Constraint("Vertical", 72, 3, 73, 3),
    Sketcher.Constraint("Diameter", 0, Q("0.196 in")),
    Sketcher.Constraint("DistanceY", 0, 3, -1, 1, Q("8 in")),
    Sketcher.Constraint("DistanceY", 2, 3, -1, 1, Q("9 in")),
    Sketcher.Constraint("DistanceY", 9, 3, -1, 1, Q("1 in")),
    Sketcher.Constraint("DistanceY", 11, 3, -1, 1, Q("2 in")),
    Sketcher.Constraint("DistanceY", 16, 3, -1, 1, Q("4 in")),
    Sketcher.Constraint("DistanceY", 18, 3, -1, 1, Q("5 in")),
    Sketcher.Constraint("DistanceY", 21, 3, -1, 1, Q("6 in")),
    Sketcher.Constraint("DistanceY", 22, 3, -1, 1, Q("7 in")),
    Sketcher.Constraint("DistanceY", 25, 3, -1, 1, Q("3 in")),
    Sketcher.Constraint("DistanceX", -1, 1, 0, 3, Q("0.5 in")),
    Sketcher.Constraint("DistanceY", 1, 3, -1, 1, Q("8.5 in")),
    Sketcher.Constraint("DistanceY", 3, 3, -1, 1, Q("9.5 in")),
    Sketcher.Constraint("DistanceX", -1, 1, 4, 3, Q("1.5 in")),
    Sketcher.Constraint("DistanceX", -1, 1, 5, 3, Q("2.5 in")),
    Sketcher.Constraint("DistanceX", -1, 1, 6, 3, Q("3.5 in")),
    Sketcher.Constraint("DistanceX", -1, 1, 7, 3, Q("4.5 in")),
    Sketcher.Constraint("DistanceY", 8, 3, -1, 1, Q("0.5 in")),
    Sketcher.Constraint("DistanceY", 10, 3, -1, 1, Q("1.5 in")),
    Sketcher.Constraint("DistanceY", 12, 3, -1, 1, Q("2.5 in")),
    Sketcher.Constraint("DistanceY", 17, 3, -1, 1, Q("4.5 in")),
    Sketcher.Constraint("DistanceY", 19, 3, -1, 1, Q("5.5 in")),
    Sketcher.Constraint("DistanceY", 20, 3, -1, 1, Q("6.5 in")),
    Sketcher.Constraint("DistanceY", 23, 3, -1, 1, Q("7.5 in")),
    Sketcher.Constraint("DistanceY", 24, 3, -1, 1, Q("3.5 in")),
    Sketcher.Constraint("DistanceX", -1, 1, 26, 3, Q("19.5 in")),
    Sketcher.Constraint("DistanceX", -1, 1, 27, 3, Q("18.5 in")),
    Sketcher.Constraint("DistanceX", -1, 1, 28, 3, Q("17.5 in")),
    Sketcher.Constraint("DistanceX", -1, 1, 29, 3, Q("16.5 in")),
    Sketcher.Constraint("DistanceX", -1, 1, 30, 3, Q("15.5 in")),
    Sketcher.Constraint("DistanceX", -1, 1, 31, 3, Q("14.5 in")),
    Sketcher.Constraint("DistanceX", -1, 1, 32, 3, Q("13.5 in")),
    Sketcher.Constraint("DistanceX", -1, 1, 33, 3, Q("12.5 in")),
    Sketcher.Constraint("DistanceX", -1, 1, 34, 3, Q("11.5 in")),
    Sketcher.Constraint("DistanceX", -1, 1, 35, 3, Q("10.5 in")),
    Sketcher.Constraint("DistanceX", -1, 1, 36, 3, Q("9.5 in")),
    Sketcher.Constraint("DistanceX", -1, 1, 37, 3, Q("8.5 in")),
    Sketcher.Constraint("DistanceX", -1, 1, 39, 3, Q("5.5 in")),
    Sketcher.Constraint("DistanceX", -1, 1, 40, 3, Q("6.5 in")),
    Sketcher.Constraint("DistanceX", -1, 1, 41, 3, Q("7.5 in")),
])
sketch2.setExpression("Constraints[182]", "Params.sketch2_diameter")
pocket1 = body.newObject("PartDesign::Pocket", "Pocket")
pocket1.Profile = sketch2
pocket1.Type = "ThroughAll"
pocket1.Reversed = True

doc.recompute()
